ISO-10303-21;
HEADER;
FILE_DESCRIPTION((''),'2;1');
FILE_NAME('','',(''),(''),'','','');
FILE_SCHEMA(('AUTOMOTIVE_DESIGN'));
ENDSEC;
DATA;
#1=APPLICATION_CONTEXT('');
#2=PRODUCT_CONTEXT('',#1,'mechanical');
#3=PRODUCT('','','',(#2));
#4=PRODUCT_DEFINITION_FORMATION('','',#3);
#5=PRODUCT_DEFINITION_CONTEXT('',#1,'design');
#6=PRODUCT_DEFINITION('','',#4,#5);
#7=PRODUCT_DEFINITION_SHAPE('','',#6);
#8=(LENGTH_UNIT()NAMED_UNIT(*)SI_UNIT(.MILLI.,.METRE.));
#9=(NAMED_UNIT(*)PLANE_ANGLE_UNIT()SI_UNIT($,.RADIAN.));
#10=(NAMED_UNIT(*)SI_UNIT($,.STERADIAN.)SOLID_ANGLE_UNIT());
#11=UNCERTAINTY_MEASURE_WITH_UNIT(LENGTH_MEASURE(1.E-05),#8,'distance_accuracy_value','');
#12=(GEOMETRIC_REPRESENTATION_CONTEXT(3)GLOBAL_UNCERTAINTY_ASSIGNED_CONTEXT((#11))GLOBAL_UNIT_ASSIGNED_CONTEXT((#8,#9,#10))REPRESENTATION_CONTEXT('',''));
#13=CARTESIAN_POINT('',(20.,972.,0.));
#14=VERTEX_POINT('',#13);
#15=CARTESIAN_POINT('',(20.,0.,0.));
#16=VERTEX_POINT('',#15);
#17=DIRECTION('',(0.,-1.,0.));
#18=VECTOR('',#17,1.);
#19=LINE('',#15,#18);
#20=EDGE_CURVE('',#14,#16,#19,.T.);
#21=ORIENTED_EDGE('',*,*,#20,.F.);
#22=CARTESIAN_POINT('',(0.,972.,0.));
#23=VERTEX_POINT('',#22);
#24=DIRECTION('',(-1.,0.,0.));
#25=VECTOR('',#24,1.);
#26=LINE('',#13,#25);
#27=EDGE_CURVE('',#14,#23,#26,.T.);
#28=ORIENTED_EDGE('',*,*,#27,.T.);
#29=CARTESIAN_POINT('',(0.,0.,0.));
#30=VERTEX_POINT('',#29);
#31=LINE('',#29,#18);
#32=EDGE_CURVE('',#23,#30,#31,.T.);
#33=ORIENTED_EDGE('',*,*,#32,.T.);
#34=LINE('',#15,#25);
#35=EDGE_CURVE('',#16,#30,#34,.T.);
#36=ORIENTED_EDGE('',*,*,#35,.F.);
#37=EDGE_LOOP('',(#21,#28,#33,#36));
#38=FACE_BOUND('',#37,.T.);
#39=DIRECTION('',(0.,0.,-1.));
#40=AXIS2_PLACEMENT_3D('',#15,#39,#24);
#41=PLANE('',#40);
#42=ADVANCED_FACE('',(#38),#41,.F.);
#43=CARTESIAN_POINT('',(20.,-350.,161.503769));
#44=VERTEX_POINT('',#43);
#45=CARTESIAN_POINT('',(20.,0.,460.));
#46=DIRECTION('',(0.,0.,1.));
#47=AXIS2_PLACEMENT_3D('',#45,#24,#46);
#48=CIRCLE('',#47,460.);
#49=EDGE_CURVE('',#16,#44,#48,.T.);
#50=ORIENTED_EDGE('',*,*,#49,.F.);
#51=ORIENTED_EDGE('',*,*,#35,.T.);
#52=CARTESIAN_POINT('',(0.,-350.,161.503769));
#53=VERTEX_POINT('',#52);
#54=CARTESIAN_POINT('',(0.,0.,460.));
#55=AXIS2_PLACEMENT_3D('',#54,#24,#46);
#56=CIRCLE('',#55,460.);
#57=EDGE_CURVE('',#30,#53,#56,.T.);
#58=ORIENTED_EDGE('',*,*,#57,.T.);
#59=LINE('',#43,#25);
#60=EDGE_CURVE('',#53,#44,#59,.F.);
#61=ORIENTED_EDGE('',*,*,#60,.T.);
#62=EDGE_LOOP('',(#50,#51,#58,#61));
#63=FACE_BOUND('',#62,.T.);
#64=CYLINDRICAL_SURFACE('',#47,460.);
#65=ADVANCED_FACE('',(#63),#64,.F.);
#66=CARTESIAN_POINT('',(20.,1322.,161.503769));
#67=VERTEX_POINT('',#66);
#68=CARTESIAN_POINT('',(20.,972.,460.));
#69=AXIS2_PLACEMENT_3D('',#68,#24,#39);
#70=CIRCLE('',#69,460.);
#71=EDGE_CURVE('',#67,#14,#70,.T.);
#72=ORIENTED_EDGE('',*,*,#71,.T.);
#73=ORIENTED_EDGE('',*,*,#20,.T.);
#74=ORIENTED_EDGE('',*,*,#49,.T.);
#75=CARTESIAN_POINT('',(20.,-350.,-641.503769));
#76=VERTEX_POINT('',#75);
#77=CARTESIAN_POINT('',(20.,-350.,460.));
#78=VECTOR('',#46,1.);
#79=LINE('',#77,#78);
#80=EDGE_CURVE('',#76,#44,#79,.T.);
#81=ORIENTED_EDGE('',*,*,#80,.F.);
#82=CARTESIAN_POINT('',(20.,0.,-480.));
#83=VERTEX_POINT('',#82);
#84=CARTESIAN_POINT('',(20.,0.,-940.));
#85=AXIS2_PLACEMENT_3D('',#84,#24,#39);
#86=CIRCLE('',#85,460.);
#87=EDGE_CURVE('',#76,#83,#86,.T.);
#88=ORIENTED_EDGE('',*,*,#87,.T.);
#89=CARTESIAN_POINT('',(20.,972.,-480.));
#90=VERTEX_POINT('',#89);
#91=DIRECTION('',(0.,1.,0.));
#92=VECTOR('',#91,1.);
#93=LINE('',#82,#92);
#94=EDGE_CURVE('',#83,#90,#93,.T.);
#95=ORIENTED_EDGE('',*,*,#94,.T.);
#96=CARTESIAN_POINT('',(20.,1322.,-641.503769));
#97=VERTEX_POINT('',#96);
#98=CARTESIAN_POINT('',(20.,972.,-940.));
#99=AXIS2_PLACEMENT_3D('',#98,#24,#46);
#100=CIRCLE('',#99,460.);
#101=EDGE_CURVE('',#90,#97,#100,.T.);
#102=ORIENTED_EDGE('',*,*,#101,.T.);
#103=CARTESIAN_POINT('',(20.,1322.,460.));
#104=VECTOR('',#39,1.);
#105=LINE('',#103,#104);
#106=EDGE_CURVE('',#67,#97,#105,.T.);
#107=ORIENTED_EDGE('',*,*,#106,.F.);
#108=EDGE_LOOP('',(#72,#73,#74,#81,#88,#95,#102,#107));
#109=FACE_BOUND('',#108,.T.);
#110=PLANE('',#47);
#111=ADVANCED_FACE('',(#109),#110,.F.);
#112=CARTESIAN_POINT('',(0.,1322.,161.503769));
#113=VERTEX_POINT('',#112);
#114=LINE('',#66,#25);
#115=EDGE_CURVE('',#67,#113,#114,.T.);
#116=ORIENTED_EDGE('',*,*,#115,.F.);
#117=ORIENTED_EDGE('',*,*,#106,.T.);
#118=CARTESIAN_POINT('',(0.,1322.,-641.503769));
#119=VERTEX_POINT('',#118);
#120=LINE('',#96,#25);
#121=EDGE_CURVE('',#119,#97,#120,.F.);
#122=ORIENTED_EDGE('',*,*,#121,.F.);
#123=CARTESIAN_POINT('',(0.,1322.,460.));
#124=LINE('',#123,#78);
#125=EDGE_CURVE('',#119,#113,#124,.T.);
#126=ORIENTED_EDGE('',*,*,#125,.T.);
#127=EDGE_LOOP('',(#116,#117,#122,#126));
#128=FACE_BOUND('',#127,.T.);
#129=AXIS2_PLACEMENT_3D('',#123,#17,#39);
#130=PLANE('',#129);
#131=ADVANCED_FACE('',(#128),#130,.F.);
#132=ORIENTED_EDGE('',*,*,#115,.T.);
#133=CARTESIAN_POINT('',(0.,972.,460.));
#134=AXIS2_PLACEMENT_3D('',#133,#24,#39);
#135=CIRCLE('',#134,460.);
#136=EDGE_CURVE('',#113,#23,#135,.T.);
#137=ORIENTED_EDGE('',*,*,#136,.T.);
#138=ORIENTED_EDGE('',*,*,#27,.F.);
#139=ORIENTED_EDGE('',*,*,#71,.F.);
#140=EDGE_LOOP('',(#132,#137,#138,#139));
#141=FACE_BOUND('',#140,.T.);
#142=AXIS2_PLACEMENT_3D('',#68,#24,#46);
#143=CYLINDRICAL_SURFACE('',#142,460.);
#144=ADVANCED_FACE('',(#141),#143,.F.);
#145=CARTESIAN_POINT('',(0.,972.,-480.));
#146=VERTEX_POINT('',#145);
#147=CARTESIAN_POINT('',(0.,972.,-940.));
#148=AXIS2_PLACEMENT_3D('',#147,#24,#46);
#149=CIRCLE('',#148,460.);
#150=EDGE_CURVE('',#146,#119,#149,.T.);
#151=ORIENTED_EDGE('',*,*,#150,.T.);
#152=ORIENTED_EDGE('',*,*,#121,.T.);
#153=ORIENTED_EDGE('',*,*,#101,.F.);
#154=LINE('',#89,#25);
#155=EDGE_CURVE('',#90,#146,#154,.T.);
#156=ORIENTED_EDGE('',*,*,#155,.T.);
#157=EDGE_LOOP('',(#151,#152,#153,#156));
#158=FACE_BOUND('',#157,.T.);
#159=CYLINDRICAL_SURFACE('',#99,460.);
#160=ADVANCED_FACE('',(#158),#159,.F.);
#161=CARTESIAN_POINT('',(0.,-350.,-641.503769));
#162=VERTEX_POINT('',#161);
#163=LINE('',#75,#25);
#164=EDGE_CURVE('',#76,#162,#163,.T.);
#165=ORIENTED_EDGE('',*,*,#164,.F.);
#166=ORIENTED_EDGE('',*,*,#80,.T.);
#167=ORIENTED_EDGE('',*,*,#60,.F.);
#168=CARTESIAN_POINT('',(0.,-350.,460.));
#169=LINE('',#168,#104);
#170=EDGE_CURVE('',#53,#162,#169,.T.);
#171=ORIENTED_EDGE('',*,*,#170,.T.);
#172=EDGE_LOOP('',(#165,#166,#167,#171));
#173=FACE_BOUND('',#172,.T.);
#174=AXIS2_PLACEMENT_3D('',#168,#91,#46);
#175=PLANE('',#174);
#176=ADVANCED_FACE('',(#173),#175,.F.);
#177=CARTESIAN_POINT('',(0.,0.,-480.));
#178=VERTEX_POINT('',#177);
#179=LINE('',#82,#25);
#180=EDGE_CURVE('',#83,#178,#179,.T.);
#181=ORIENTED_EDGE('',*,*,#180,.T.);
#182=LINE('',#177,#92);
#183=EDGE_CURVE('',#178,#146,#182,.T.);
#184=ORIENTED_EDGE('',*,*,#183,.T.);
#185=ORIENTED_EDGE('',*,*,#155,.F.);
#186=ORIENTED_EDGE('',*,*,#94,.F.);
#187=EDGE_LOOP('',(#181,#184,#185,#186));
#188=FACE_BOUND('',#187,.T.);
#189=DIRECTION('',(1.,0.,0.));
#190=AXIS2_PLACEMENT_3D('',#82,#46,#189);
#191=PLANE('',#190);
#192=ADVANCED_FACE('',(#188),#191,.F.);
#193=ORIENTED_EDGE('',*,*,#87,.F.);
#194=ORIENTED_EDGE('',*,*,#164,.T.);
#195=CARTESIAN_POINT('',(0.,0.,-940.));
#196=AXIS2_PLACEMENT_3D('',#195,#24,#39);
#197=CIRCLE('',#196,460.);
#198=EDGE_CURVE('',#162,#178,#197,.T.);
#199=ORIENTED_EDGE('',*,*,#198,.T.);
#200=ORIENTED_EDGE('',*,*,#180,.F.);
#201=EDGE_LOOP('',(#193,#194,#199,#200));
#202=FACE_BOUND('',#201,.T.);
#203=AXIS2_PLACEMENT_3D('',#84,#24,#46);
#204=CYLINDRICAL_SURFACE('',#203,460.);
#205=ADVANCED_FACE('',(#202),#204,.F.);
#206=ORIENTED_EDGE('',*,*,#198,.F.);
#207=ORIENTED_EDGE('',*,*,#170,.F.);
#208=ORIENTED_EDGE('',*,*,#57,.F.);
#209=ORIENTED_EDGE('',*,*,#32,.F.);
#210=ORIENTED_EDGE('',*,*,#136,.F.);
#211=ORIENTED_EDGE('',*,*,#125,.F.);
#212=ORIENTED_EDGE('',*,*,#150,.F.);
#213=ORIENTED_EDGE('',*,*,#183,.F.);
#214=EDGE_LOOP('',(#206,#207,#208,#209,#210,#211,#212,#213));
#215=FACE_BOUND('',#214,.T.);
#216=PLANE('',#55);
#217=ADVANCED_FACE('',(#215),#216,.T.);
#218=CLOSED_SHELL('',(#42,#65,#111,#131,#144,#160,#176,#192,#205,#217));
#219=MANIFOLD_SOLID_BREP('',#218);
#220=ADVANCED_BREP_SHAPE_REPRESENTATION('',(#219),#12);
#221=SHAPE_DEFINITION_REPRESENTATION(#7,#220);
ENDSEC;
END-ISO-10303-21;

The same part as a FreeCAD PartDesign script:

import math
import FreeCAD as App
import Part
import Sketcher

V = App.Vector


def add_polygon(sketch, points):
    """Adds a closed chain of lines whose ends are joined by coincident constraints."""
    first, n = sketch.GeometryCount, len(points)
    for a, b in zip(points, points[1:] + points[:1]):
        sketch.addGeometry(Part.LineSegment(App.Vector(*a, 0), App.Vector(*b, 0)), False)
    for i in range(n):
        sketch.addConstraint(Sketcher.Constraint("Coincident", first + i, 2, first + (i + 1) % n, 1))

doc = App.newDocument("Part")
body = doc.addObject("PartDesign::Body", "Body")

sketch1 = body.newObject("Sketcher::SketchObject", "Sketch")
sketch1.AttachmentSupport = (doc.getObject("YZ_Plane"), [""])
sketch1.MapMode = "FlatFace"
sketch1.addGeometry([
    Part.LineSegment(V(972, 0, 0), V(0, 0, 0)),
    Part.ArcOfCircle(Part.Circle(V(0, 460, 0), V(0, 0, 1), 460), math.radians(180), math.radians(270)),
    Part.LineSegment(V(-460, 460, 0), V(-460, -940, 0)),
    Part.ArcOfCircle(Part.Circle(V(0, -940, 0), V(0, 0, 1), 460), math.radians(90), math.radians(180)),
    Part.LineSegment(V(0, -480, 0), V(972, -480, 0)),
    Part.ArcOfCircle(Part.Circle(V(972, -940, 0), V(0, 0, 1), 460), math.radians(0), math.radians(90)),
    Part.LineSegment(V(1432, -940, 0), V(1432, 460, 0)),
    Part.ArcOfCircle(Part.Circle(V(972, 460, 0), V(0, 0, 1), 460), math.radians(-90), math.radians(0)),
], False)
sketch1.addConstraint([
    Sketcher.Constraint("Tangent", 0, 2, 1, 2),
    Sketcher.Constraint("Tangent", 1, 1, 2, 1),
    Sketcher.Constraint("Tangent", 2, 2, 3, 2),
    Sketcher.Constraint("Tangent", 3, 1, 4, 1),
    Sketcher.Constraint("Tangent", 4, 2, 5, 2),
    Sketcher.Constraint("Tangent", 5, 1, 6, 1),
    Sketcher.Constraint("Tangent", 6, 2, 7, 2),
    Sketcher.Constraint("Tangent", 7, 1, 0, 1),
    Sketcher.Constraint("Horizontal", 0),
    Sketcher.Constraint("Vertical", 2),
    Sketcher.Constraint("Horizontal", 4),
    Sketcher.Constraint("Vertical", 6),
    Sketcher.Constraint("Coincident", 0, 2, -1, 1),
    Sketcher.Constraint("Equal", 1, 3),
    Sketcher.Constraint("Equal", 3, 5),
    Sketcher.Constraint("Equal", 5, 7),
    Sketcher.Constraint("Radius", 1, 460.0),
    Sketcher.Constraint("DistanceX", 0, 2, 0, 1, 972.0),
    Sketcher.Constraint("DistanceY", 2, 2, 2, 1, 1400.0),
])
pad1 = body.newObject("PartDesign::Pad", "Pad")
pad1.Profile = sketch1
pad1.Length = 20

sketch2 = body.newObject("Sketcher::SketchObject", "Sketch001")
sketch2.AttachmentSupport = (doc.getObject("YZ_Plane"), [""])
sketch2.MapMode = "FlatFace"
sketch2.AttachmentOffset = App.Placement(V(0, 0, 20), App.Rotation())
add_polygon(sketch2, [(1322, 460), (1322, -1005), (1530, -1005), (1530, 489)])
add_polygon(sketch2, [(-558, -1005), (-350, -1005), (-350, 460), (-558, 489)])
sketch2.addConstraint([
    Sketcher.Constraint("Vertical", 0),
    Sketcher.Constraint("Horizontal", 1),
    Sketcher.Constraint("Vertical", 2),
    Sketcher.Constraint("Horizontal", 4),
    Sketcher.Constraint("Vertical", 5),
    Sketcher.Constraint("Vertical", 7),
    Sketcher.Constraint("Horizontal", 1, 2, 4, 2),
    Sketcher.Constraint("Horizontal", 3, 2, 5, 2),
    Sketcher.Constraint("Horizontal", 2, 2, 6, 2),
    Sketcher.Constraint("Equal", 1, 4),
    Sketcher.Constraint("DistanceX", -1, 1, 0, 2, 1322.0),
    Sketcher.Constraint("DistanceY", -1, 1, 3, 2, 460.0),
    Sketcher.Constraint("DistanceX", 4, 2, -1, 1, 350.0),
    Sketcher.Constraint("Distance", 3, 210.286379),
    Sketcher.Constraint("DistanceX", 1, 1, 1, 2, 208.227687),
    Sketcher.Constraint("DistanceY", 0, 2, 0, 1, 1464.695968),
])
pocket1 = body.newObject("PartDesign::Pocket", "Pocket")
pocket1.Profile = sketch2
pocket1.Length = 20

doc.recompute()
